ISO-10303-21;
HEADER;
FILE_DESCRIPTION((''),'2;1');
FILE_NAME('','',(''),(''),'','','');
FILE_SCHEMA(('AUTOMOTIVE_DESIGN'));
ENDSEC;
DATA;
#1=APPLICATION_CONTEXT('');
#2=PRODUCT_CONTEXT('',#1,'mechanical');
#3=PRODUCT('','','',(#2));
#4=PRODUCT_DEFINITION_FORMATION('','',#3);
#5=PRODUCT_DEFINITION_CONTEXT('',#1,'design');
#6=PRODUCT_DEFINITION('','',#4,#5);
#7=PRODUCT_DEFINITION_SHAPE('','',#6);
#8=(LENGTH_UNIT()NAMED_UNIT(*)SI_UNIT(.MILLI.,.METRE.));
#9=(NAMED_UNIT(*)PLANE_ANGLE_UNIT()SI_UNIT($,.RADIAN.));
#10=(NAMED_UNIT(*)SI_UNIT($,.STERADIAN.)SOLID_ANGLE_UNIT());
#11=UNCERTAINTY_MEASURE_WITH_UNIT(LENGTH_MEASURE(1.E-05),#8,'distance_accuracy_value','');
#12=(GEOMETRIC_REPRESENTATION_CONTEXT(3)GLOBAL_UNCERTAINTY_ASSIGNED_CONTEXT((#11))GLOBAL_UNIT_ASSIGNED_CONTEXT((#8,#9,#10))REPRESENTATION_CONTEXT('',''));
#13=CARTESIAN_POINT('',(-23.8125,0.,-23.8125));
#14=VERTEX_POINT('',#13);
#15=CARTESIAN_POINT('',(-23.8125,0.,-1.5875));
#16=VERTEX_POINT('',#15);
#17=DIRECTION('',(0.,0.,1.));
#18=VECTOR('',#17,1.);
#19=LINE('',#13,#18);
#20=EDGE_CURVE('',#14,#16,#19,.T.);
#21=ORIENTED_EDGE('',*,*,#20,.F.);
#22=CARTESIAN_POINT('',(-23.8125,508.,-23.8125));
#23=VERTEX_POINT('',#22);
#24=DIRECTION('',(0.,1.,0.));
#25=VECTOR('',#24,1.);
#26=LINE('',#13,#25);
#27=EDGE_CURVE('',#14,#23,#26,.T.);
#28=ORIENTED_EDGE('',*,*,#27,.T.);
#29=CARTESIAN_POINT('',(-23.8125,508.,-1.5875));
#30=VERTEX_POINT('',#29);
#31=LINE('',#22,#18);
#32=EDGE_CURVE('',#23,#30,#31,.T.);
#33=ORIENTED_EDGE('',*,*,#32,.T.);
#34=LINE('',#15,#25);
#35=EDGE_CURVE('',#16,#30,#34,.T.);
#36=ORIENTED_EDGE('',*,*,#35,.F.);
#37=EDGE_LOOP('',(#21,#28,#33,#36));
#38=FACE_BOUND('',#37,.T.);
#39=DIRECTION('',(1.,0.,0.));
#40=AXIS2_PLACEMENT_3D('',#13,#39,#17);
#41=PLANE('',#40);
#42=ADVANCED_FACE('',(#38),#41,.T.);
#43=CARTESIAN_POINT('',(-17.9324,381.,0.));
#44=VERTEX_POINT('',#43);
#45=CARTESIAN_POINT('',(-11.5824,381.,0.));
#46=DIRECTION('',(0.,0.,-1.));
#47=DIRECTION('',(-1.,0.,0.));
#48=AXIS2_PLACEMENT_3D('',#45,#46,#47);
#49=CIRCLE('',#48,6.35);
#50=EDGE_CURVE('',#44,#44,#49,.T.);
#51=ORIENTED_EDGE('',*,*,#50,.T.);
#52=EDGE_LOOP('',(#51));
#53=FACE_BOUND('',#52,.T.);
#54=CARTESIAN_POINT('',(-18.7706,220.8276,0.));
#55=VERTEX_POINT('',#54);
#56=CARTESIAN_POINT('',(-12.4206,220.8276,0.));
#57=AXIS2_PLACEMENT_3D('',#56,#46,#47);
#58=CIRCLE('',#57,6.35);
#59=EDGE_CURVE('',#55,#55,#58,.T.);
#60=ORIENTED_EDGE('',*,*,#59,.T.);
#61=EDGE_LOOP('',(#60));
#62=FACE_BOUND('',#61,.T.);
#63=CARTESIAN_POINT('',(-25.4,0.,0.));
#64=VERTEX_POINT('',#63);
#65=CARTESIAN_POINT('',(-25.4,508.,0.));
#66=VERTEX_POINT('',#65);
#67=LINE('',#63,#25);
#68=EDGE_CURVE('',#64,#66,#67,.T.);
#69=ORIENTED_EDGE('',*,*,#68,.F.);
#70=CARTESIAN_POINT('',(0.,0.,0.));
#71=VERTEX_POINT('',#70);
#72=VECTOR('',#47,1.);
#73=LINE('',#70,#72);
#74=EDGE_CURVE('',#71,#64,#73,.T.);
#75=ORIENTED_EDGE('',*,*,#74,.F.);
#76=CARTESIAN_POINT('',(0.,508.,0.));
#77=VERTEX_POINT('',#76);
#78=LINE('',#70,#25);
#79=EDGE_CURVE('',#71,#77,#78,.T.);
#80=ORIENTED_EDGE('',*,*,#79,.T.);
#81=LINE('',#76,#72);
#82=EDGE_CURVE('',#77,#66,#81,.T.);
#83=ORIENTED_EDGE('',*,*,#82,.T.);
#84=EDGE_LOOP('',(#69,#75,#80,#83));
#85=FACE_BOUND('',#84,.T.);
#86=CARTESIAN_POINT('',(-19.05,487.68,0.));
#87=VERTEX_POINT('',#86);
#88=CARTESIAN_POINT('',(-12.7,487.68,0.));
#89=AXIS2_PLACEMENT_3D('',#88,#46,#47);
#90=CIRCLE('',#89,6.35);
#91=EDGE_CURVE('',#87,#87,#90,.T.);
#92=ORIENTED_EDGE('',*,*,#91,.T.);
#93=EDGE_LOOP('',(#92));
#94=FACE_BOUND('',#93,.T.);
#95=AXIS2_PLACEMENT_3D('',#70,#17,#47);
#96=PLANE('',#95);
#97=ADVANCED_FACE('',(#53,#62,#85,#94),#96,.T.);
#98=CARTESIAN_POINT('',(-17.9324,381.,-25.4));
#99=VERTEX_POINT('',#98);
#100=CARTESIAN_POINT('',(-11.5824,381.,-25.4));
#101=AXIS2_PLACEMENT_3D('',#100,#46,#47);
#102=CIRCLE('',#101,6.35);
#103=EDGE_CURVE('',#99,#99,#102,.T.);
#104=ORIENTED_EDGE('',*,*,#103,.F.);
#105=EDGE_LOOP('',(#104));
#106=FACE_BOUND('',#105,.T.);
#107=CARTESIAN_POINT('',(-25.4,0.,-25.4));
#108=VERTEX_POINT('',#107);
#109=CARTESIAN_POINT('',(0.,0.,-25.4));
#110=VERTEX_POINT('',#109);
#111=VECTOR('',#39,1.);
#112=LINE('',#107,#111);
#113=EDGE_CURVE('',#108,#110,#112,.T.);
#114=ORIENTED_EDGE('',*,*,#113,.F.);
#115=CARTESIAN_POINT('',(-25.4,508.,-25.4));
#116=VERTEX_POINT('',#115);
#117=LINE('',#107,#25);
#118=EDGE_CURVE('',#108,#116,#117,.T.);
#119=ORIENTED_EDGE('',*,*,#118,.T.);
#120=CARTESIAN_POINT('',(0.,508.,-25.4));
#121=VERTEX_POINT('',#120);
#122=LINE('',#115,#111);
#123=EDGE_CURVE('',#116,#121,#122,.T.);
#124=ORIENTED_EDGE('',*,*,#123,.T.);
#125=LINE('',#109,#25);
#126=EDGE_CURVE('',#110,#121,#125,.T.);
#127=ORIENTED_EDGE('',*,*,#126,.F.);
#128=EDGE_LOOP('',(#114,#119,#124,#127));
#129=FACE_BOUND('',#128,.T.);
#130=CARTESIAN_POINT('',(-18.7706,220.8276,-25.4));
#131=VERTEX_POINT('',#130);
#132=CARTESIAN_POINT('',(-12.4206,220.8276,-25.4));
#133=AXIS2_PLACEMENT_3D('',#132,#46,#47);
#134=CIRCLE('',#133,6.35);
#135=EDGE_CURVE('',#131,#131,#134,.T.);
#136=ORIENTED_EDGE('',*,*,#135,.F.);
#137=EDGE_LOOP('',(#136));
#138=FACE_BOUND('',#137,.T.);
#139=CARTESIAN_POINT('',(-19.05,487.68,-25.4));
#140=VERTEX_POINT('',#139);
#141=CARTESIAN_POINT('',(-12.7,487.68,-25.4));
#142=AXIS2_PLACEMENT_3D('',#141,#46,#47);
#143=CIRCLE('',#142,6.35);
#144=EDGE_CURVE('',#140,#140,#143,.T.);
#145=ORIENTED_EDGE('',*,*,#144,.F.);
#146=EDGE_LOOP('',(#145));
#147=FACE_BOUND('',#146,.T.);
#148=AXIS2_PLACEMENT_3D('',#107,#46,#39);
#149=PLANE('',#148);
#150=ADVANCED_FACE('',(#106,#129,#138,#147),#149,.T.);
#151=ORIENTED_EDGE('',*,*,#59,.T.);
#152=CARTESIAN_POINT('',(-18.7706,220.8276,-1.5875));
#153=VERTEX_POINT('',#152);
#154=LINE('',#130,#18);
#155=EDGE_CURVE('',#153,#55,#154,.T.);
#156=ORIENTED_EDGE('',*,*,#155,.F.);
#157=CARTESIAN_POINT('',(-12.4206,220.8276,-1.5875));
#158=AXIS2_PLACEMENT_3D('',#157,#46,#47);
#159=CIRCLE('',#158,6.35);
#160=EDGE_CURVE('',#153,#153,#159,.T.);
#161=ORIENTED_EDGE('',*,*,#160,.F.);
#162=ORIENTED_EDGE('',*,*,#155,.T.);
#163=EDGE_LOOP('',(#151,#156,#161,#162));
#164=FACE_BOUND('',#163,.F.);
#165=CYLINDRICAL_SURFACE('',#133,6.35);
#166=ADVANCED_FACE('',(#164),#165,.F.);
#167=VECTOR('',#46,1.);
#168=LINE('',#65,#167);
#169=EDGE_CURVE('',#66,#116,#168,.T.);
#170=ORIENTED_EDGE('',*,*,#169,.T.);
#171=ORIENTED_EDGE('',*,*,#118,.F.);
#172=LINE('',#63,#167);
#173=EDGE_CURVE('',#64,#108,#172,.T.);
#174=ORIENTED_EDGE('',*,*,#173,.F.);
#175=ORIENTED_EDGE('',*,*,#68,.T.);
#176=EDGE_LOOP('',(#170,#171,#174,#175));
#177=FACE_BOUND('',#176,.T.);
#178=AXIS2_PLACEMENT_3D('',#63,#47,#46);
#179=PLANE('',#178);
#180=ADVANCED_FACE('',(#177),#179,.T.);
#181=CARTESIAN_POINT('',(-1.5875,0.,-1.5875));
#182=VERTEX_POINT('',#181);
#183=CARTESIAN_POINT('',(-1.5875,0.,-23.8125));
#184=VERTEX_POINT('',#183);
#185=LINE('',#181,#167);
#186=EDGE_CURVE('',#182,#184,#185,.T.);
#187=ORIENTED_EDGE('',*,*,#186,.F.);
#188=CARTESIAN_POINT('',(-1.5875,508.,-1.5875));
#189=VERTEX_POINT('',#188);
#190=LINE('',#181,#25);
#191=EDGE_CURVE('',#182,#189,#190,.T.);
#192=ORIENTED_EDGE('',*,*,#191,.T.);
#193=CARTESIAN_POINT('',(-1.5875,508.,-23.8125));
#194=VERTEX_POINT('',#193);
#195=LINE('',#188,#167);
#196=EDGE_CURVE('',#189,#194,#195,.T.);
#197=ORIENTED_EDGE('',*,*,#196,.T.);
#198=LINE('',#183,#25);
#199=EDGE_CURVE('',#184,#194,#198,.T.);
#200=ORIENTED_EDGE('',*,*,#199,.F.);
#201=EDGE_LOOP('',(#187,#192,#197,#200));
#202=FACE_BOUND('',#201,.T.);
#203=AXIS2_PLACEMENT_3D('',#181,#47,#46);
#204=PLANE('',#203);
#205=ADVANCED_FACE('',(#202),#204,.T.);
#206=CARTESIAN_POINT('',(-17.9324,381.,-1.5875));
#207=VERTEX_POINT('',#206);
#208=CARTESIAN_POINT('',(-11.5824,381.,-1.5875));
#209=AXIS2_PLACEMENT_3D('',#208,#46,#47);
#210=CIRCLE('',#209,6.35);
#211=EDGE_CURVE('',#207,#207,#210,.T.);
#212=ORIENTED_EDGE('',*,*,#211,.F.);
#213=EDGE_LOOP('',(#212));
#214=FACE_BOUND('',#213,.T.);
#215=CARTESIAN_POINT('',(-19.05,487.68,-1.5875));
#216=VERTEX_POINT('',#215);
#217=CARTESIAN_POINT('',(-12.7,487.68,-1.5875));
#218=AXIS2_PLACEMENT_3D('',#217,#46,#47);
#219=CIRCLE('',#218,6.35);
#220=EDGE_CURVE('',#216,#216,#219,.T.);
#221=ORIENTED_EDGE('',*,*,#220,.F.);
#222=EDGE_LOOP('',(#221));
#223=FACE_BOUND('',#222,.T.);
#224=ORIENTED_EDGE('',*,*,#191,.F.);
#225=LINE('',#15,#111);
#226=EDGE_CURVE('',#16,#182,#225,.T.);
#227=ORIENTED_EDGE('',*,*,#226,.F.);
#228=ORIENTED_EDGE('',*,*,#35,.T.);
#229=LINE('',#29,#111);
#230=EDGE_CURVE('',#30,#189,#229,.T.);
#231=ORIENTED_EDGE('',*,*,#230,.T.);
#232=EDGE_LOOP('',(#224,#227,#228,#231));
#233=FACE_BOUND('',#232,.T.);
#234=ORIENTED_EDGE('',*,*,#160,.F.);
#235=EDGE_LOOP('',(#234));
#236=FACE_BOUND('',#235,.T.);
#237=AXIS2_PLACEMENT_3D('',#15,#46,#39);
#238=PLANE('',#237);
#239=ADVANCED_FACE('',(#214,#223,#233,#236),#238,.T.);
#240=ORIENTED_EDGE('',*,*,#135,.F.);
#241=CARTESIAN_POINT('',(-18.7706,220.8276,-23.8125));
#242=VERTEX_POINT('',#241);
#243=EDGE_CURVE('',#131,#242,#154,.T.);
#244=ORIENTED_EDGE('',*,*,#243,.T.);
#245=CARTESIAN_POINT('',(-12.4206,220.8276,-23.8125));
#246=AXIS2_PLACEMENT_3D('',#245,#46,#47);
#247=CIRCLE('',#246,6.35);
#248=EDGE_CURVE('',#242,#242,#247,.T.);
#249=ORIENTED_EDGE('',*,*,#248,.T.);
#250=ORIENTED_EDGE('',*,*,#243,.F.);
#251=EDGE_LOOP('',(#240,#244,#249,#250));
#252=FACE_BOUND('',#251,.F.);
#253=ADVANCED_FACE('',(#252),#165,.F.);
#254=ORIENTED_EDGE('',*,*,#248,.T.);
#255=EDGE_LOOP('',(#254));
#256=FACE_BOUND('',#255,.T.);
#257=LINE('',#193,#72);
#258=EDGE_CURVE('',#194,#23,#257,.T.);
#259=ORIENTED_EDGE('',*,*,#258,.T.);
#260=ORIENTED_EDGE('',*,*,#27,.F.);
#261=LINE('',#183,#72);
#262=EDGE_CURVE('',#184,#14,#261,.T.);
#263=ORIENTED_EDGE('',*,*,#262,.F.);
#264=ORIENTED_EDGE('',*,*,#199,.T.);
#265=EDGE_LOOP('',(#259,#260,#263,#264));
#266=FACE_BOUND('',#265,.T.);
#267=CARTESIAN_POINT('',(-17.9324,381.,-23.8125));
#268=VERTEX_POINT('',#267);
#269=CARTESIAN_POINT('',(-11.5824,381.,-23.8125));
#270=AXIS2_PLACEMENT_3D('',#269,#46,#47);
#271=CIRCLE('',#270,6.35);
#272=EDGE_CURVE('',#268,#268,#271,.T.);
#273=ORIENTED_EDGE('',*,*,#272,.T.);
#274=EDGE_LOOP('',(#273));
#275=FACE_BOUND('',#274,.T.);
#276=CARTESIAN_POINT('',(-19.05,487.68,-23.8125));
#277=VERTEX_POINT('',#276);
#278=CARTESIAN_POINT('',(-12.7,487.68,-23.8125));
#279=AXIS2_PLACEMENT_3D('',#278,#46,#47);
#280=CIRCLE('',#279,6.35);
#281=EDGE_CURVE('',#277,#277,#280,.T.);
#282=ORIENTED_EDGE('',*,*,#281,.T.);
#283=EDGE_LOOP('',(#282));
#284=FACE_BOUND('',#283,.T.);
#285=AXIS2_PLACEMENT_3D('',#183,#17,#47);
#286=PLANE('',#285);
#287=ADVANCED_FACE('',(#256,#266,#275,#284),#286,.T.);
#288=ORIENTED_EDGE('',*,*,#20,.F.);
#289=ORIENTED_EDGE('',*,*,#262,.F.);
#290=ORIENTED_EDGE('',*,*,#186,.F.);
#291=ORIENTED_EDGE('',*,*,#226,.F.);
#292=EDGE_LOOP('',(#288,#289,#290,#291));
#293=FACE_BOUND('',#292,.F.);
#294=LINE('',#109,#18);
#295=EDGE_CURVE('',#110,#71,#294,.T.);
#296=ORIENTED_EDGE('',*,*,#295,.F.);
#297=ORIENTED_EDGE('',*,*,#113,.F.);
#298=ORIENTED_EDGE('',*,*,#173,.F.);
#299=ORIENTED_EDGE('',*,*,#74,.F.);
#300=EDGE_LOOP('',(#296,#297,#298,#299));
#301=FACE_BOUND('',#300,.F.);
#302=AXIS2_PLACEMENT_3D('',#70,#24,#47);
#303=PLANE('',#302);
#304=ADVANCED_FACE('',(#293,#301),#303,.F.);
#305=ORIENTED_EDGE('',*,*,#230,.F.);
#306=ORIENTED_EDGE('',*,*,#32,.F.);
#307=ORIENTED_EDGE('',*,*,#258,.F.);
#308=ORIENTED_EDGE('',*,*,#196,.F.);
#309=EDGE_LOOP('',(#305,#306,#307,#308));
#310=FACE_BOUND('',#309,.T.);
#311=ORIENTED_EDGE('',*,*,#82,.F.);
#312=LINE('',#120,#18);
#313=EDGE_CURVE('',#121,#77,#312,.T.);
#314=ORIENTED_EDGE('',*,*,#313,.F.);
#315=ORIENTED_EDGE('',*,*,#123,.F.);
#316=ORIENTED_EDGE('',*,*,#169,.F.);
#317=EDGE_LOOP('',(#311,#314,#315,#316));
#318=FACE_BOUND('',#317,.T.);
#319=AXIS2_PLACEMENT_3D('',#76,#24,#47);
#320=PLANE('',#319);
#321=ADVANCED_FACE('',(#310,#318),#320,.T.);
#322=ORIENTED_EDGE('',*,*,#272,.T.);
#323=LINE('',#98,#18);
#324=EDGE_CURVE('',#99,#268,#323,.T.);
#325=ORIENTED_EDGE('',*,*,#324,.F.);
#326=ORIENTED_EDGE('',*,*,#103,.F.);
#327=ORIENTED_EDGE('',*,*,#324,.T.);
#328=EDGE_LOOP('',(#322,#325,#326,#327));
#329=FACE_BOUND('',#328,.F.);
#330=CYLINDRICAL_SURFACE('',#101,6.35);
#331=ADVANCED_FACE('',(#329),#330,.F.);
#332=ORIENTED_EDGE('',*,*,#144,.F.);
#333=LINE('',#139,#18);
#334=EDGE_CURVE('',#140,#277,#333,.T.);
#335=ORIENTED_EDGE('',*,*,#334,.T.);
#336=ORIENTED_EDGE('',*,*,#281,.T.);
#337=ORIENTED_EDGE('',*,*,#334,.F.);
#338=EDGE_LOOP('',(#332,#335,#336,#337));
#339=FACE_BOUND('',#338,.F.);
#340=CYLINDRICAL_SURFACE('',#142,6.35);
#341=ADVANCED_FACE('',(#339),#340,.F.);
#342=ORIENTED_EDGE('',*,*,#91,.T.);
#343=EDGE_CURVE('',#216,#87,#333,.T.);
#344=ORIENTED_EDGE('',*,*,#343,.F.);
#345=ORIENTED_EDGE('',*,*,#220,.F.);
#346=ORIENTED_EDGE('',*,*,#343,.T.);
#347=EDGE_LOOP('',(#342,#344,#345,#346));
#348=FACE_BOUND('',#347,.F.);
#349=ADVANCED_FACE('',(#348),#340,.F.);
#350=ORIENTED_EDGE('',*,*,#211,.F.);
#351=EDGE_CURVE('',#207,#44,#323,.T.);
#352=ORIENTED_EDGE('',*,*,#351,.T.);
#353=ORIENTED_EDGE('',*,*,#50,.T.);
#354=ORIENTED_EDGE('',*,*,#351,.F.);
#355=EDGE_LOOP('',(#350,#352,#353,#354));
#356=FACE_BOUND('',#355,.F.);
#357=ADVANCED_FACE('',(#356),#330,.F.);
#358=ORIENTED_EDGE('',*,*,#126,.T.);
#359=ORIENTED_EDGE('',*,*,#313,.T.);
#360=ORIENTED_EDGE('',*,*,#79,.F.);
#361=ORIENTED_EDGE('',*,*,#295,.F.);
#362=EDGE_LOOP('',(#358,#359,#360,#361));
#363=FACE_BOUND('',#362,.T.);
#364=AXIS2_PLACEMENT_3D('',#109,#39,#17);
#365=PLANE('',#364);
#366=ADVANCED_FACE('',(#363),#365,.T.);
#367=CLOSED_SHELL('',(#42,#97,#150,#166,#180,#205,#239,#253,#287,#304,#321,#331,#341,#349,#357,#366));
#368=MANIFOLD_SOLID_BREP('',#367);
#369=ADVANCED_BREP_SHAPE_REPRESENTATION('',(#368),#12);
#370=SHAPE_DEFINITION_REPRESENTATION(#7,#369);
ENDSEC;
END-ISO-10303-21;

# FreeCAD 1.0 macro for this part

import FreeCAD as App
import Part
import Sketcher
Q = App.Units.Quantity


def add_polygon(sketch, points):
    """Adds a closed chain of lines whose ends are joined by coincident constraints."""
    first, n = sketch.GeometryCount, len(points)
    for a, b in zip(points, points[1:] + points[:1]):
        sketch.addGeometry(Part.LineSegment(App.Vector(*a, 0), App.Vector(*b, 0)), False)
    for i in range(n):
        sketch.addConstraint(Sketcher.Constraint("Coincident", first + i, 2, first + (i + 1) % n, 1))

doc = App.newDocument("Part")
body = doc.addObject("PartDesign::Body", "Body")

# Sketch on XZ plane
sketch1 = doc.addObject("Sketcher::SketchObject", "Sketch")
body.addObject(sketch1)
sketch1.AttachmentSupport = (doc.XZ_Plane, [""])
sketch1.MapMode = "FlatFace"
add_polygon(sketch1, [(-25, 0), (0, 0), (0, -25), (-25, -25)])  # lines 0-3
add_polygon(sketch1, [(-24, -2), (-24, -24), (-2, -24), (-2, -2)])  # lines 4-7
sketch1.addConstraint([
    Sketcher.Constraint("Horizontal", 0),
    Sketcher.Constraint("Vertical", 1),
    Sketcher.Constraint("Horizontal", 2),
    Sketcher.Constraint("Vertical", 3),
    Sketcher.Constraint("Vertical", 4),
    Sketcher.Constraint("Horizontal", 5),
    Sketcher.Constraint("Vertical", 6),
    Sketcher.Constraint("Horizontal", 7),
    Sketcher.Constraint("Coincident", 0, 2, -1, 1),
    Sketcher.Constraint("Equal", 2, 1),
    Sketcher.Constraint("Equal", 7, 4),
    Sketcher.Constraint("DistanceX", 0, 1, 0, 2, Q("1 in")),
    Sketcher.Constraint("DistanceX", 5, 2, -1, 1, Q("0.0625 in")),
    Sketcher.Constraint("DistanceY", 6, 2, -1, 1, Q("0.0625 in")),
    Sketcher.Constraint("DistanceX", 2, 2, 4, 2, Q("0.0625 in")),
])
pad1 = doc.addObject("PartDesign::Pad", "Pad")
body.addObject(pad1)
pad1.Profile = sketch1
pad1.Length = Q("20 in")
pad1.Reversed = True

# Sketch on XY plane
sketch2 = doc.addObject("Sketcher::SketchObject", "Sketch001")
body.addObject(sketch2)
sketch2.AttachmentSupport = (doc.XY_Plane, [""])
sketch2.MapMode = "FlatFace"
sketch2.AttachmentOffset = App.Placement(App.Vector(0, 0, -1 * 25.4), App.Rotation())
sketch2.addGeometry(Part.Circle(App.Vector(-13, 488, 0), App.Vector(0, 0, 1), 6), False)
sketch2.addConstraint([
    Sketcher.Constraint("Diameter", 0, Q("0.5 in")),
    Sketcher.Constraint("DistanceX", 0, 3, -1, 1, Q("0.5 in")),
    Sketcher.Constraint("DistanceY", -1, 1, 0, 3, Q("19.2 in")),
])
pocket1 = doc.addObject("PartDesign::Pocket", "Pocket")
body.addObject(pocket1)
pocket1.Profile = sketch2
pocket1.Length = Q("1 in")
pocket1.Reversed = True

# Sketch on XY plane
sketch3 = doc.addObject("Sketcher::SketchObject", "Sketch002")
body.addObject(sketch3)
sketch3.AttachmentSupport = (doc.XY_Plane, [""])
sketch3.MapMode = "FlatFace"
sketch3.AttachmentOffset = App.Placement(App.Vector(0, 0, -1 * 25.4), App.Rotation())
sketch3.addGeometry(Part.Circle(App.Vector(-12, 381, 0), App.Vector(0, 0, 1), 6), False)
sketch3.addConstraint([
    Sketcher.Constraint("Diameter", 0, Q("0.5 in")),
    Sketcher.Constraint("DistanceX", 0, 3, -1, 1, Q("0.456 in")),
    Sketcher.Constraint("DistanceY", -1, 1, 0, 3, Q("15 in")),
])
pocket2 = doc.addObject("PartDesign::Pocket", "Pocket001")
body.addObject(pocket2)
pocket2.Profile = sketch3
pocket2.Length = Q("1 in")
pocket2.Reversed = True

# Sketch on XY plane
sketch4 = doc.addObject("Sketcher::SketchObject", "Sketch003")
body.addObject(sketch4)
sketch4.AttachmentSupport = (doc.XY_Plane, [""])
sketch4.MapMode = "FlatFace"
sketch4.AttachmentOffset = App.Placement(App.Vector(0, 0, -1 * 25.4), App.Rotation())
sketch4.addGeometry(Part.Circle(App.Vector(-12, 221, 0), App.Vector(0, 0, 1), 6), False)
sketch4.addConstraint([
    Sketcher.Constraint("Diameter", 0, Q("0.5 in")),
    Sketcher.Constraint("DistanceY", -1, 1, 0, 3, Q("8.694 in")),
    Sketcher.Constraint("DistanceX", 0, 3, -1, 1, Q("0.489 in")),
])
pocket3 = doc.addObject("PartDesign::Pocket", "Pocket002")
body.addObject(pocket3)
pocket3.Profile = sketch4
pocket3.Length = Q("1 in")
pocket3.Reversed = True

doc.recompute()
